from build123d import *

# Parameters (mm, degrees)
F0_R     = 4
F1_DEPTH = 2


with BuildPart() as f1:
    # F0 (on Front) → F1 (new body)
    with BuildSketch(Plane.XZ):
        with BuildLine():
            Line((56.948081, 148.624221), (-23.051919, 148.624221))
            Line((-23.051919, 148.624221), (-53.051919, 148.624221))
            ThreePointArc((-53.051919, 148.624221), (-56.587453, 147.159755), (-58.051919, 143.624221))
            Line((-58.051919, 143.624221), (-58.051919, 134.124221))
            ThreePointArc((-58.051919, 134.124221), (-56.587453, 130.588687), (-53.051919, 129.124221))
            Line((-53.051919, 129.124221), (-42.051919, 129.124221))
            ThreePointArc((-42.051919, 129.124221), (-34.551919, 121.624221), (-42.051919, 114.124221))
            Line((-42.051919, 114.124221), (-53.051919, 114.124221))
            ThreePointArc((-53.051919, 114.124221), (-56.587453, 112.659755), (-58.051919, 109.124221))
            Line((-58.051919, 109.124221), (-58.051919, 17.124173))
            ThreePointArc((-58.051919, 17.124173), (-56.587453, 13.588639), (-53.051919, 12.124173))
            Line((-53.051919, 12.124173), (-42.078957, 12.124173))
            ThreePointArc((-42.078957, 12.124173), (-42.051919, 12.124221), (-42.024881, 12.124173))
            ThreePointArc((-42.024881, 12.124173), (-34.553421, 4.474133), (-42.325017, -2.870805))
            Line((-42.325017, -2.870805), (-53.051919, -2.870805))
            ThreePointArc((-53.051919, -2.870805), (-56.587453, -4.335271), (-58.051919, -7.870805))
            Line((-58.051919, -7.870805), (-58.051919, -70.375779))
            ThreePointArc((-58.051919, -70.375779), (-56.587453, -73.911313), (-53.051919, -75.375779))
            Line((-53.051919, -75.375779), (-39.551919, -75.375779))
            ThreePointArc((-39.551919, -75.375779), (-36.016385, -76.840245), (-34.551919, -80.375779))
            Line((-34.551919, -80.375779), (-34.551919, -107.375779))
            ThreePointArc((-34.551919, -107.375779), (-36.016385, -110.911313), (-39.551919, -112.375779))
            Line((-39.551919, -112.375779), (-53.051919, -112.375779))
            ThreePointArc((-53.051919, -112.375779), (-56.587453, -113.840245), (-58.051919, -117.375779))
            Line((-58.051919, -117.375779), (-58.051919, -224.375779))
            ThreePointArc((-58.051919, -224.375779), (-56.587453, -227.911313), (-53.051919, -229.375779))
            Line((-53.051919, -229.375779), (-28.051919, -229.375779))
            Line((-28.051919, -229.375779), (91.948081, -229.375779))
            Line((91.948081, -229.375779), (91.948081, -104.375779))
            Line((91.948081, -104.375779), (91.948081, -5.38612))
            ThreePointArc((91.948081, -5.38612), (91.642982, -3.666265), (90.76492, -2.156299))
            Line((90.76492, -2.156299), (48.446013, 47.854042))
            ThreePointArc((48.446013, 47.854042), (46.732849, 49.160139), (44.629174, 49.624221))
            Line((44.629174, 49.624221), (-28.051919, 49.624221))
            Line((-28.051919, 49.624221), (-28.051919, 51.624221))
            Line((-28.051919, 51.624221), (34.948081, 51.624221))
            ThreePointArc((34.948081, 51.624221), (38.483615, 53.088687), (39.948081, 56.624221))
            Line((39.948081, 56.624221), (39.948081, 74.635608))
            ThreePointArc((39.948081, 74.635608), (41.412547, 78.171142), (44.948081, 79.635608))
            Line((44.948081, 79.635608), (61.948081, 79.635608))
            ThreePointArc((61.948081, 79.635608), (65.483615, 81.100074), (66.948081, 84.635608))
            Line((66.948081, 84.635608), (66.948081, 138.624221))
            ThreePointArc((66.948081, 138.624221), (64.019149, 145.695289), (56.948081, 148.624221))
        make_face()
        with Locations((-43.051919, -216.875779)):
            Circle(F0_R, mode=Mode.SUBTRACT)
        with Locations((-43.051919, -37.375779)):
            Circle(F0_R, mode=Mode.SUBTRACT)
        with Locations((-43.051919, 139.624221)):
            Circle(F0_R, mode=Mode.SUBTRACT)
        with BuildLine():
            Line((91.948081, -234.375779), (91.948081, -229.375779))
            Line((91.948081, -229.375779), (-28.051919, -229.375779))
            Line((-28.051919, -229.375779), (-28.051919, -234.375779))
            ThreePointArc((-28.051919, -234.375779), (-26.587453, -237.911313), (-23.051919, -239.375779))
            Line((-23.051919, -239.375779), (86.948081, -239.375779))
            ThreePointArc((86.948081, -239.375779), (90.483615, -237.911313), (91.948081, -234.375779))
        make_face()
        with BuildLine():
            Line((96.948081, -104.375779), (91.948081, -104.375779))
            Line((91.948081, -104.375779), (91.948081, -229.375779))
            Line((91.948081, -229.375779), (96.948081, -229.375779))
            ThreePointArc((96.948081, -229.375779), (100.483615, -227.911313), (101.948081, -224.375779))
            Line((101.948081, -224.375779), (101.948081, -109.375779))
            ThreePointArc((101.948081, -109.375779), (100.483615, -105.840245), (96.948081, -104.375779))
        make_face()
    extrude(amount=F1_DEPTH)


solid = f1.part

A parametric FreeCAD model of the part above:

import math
import FreeCAD as App
import Part
import Sketcher

V = App.Vector
Q = App.Units.Quantity

doc = App.newDocument("Part")
body = doc.addObject("PartDesign::Body", "Body")

# Sketch on XZ plane
sketch1 = doc.addObject("Sketcher::SketchObject", "Sketch")
body.addObject(sketch1)
sketch1.AttachmentSupport = (doc.XZ_Plane, [""])
sketch1.MapMode = "FlatFace"
sketch1.addGeometry(Part.LineSegment(V(56.95, 148.62, 0), V(-53.05, 148.62, 0)), False)
sketch1.addGeometry(Part.ArcOfCircle(Part.Circle(V(-53.05, 143.62, 0), V(0, 0, 1), 5), math.radians(90), math.radians(180)), False)
sketch1.addGeometry(Part.LineSegment(V(-58.05, 143.62, 0), V(-58.05, 134.12, 0)), False)
sketch1.addGeometry(Part.ArcOfCircle(Part.Circle(V(-53.05, 134.12, 0), V(0, 0, 1), 5), math.radians(180), math.radians(270)), False)
sketch1.addGeometry(Part.LineSegment(V(-53.05, 129.12, 0), V(-42.05, 129.12, 0)), False)
sketch1.addGeometry(Part.ArcOfCircle(Part.Circle(V(-42.05, 121.62, 0), V(0, 0, 1), 7.5), math.radians(-90), math.radians(90)), False)
sketch1.addGeometry(Part.LineSegment(V(-42.05, 114.12, 0), V(-53.05, 114.12, 0)), False)
sketch1.addGeometry(Part.ArcOfCircle(Part.Circle(V(-53.05, 109.12, 0), V(0, 0, 1), 5), math.radians(90), math.radians(180)), False)
sketch1.addGeometry(Part.LineSegment(V(-58.05, 109.12, 0), V(-58.05, 17.12, 0)), False)
sketch1.addGeometry(Part.ArcOfCircle(Part.Circle(V(-53.05, 17.12, 0), V(0, 0, 1), 5), math.radians(180), math.radians(270)), False)
sketch1.addGeometry(Part.LineSegment(V(-53.05, 12.12, 0), V(-42.08, 12.12, 0)), False)
sketch1.addGeometry(Part.ArcOfCircle(Part.Circle(V(-42.05, 4.51, 0), V(0, 0, 1), 7.62), math.radians(89.8), math.radians(90.2)), False)
sketch1.addGeometry(Part.ArcOfCircle(Part.Circle(V(-42.05, 4.62, 0), V(0, 0, 1), 7.5), math.radians(-92), math.radians(90)), False)
sketch1.addGeometry(Part.LineSegment(V(-42.33, -2.87, 0), V(-53.05, -2.87, 0)), False)
sketch1.addGeometry(Part.ArcOfCircle(Part.Circle(V(-53.05, -7.87, 0), V(0, 0, 1), 5), math.radians(90), math.radians(180)), False)
sketch1.addGeometry(Part.LineSegment(V(-58.05, -7.87, 0), V(-58.05, -70.38, 0)), False)
sketch1.addGeometry(Part.ArcOfCircle(Part.Circle(V(-53.05, -70.38, 0), V(0, 0, 1), 5), math.radians(180), math.radians(270)), False)
sketch1.addGeometry(Part.LineSegment(V(-53.05, -75.38, 0), V(-39.55, -75.38, 0)), False)
sketch1.addGeometry(Part.ArcOfCircle(Part.Circle(V(-39.55, -80.38, 0), V(0, 0, 1), 5), math.radians(0), math.radians(90)), False)
sketch1.addGeometry(Part.LineSegment(V(-34.55, -80.38, 0), V(-34.55, -107.38, 0)), False)
sketch1.addGeometry(Part.ArcOfCircle(Part.Circle(V(-39.55, -107.38, 0), V(0, 0, 1), 5), math.radians(-90), math.radians(0)), False)
sketch1.addGeometry(Part.LineSegment(V(-39.55, -112.38, 0), V(-53.05, -112.38, 0)), False)
sketch1.addGeometry(Part.ArcOfCircle(Part.Circle(V(-53.05, -117.38, 0), V(0, 0, 1), 5), math.radians(90), math.radians(180)), False)
sketch1.addGeometry(Part.LineSegment(V(-58.05, -117.38, 0), V(-58.05, -224.38, 0)), False)
sketch1.addGeometry(Part.ArcOfCircle(Part.Circle(V(-53.05, -224.38, 0), V(0, 0, 1), 5), math.radians(180), math.radians(270)), False)
sketch1.addGeometry(Part.LineSegment(V(-53.05, -229.38, 0), V(-28.05, -229.38, 0)), False)
sketch1.addGeometry(Part.LineSegment(V(-28.05, -229.38, 0), V(-28.05, -234.38, 0)), False)
sketch1.addGeometry(Part.ArcOfCircle(Part.Circle(V(-23.05, -234.38, 0), V(0, 0, 1), 5), math.radians(180), math.radians(270)), False)
sketch1.addGeometry(Part.LineSegment(V(-23.05, -239.38, 0), V(86.95, -239.38, 0)), False)
sketch1.addGeometry(Part.ArcOfCircle(Part.Circle(V(86.95, -234.38, 0), V(0, 0, 1), 5), math.radians(-90), math.radians(0)), False)
sketch1.addGeometry(Part.LineSegment(V(91.95, -234.38, 0), V(91.95, -229.38, 0)), False)
sketch1.addGeometry(Part.LineSegment(V(91.95, -229.38, 0), V(96.95, -229.38, 0)), False)
sketch1.addGeometry(Part.ArcOfCircle(Part.Circle(V(96.95, -224.38, 0), V(0, 0, 1), 5), math.radians(-90), math.radians(0)), False)
sketch1.addGeometry(Part.LineSegment(V(101.95, -224.38, 0), V(101.95, -109.38, 0)), False)
sketch1.addGeometry(Part.ArcOfCircle(Part.Circle(V(96.95, -109.38, 0), V(0, 0, 1), 5), math.radians(0), math.radians(90)), False)
sketch1.addGeometry(Part.LineSegment(V(96.95, -104.38, 0), V(91.95, -104.38, 0)), False)
sketch1.addGeometry(Part.LineSegment(V(91.95, -104.38, 0), V(91.95, -5.39, 0)), False)
sketch1.addGeometry(Part.ArcOfCircle(Part.Circle(V(86.95, -5.39, 0), V(0, 0, 1), 5), math.radians(0), math.radians(40)), False)
sketch1.addGeometry(Part.LineSegment(V(90.76, -2.16, 0), V(48.45, 47.85, 0)), False)
sketch1.addGeometry(Part.ArcOfCircle(Part.Circle(V(44.63, 44.62, 0), V(0, 0, 1), 5), math.radians(40), math.radians(90)), False)
sketch1.addGeometry(Part.LineSegment(V(44.63, 49.62, 0), V(-28.05, 49.62, 0)), False)
sketch1.addGeometry(Part.LineSegment(V(-28.05, 49.62, 0), V(-28.05, 51.62, 0)), False)
sketch1.addGeometry(Part.LineSegment(V(-28.05, 51.62, 0), V(34.95, 51.62, 0)), False)
sketch1.addGeometry(Part.ArcOfCircle(Part.Circle(V(34.95, 56.62, 0), V(0, 0, 1), 5), math.radians(-90), math.radians(0)), False)
sketch1.addGeometry(Part.LineSegment(V(39.95, 56.62, 0), V(39.95, 74.64, 0)), False)
sketch1.addGeometry(Part.ArcOfCircle(Part.Circle(V(44.95, 74.64, 0), V(0, 0, 1), 5), math.radians(90), math.radians(180)), False)
sketch1.addGeometry(Part.LineSegment(V(44.95, 79.64, 0), V(61.95, 79.64, 0)), False)
sketch1.addGeometry(Part.ArcOfCircle(Part.Circle(V(61.95, 84.64, 0), V(0, 0, 1), 5), math.radians(-90), math.radians(0)), False)
sketch1.addGeometry(Part.LineSegment(V(66.95, 84.64, 0), V(66.95, 138.62, 0)), False)
sketch1.addGeometry(Part.ArcOfCircle(Part.Circle(V(56.95, 138.62, 0), V(0, 0, 1), 10), math.radians(0), math.radians(90)), False)
sketch1.addGeometry(Part.Circle(V(-43.05, -216.88, 0), V(0, 0, 1), 4), False)
sketch1.addGeometry(Part.Circle(V(-43.05, -37.38, 0), V(0, 0, 1), 4), False)
sketch1.addGeometry(Part.Circle(V(-43.05, 139.62, 0), V(0, 0, 1), 4), False)
sketch1.addConstraint(Sketcher.Constraint("Tangent", 0, 2, 1, 1))
sketch1.addConstraint(Sketcher.Constraint("Tangent", 1, 2, 2, 1))
sketch1.addConstraint(Sketcher.Constraint("Tangent", 2, 2, 3, 1))
sketch1.addConstraint(Sketcher.Constraint("Tangent", 3, 2, 4, 1))
sketch1.addConstraint(Sketcher.Constraint("Tangent", 4, 2, 5, 2))
sketch1.addConstraint(Sketcher.Constraint("Tangent", 5, 1, 6, 1))
sketch1.addConstraint(Sketcher.Constraint("Tangent", 6, 2, 7, 1))
sketch1.addConstraint(Sketcher.Constraint("Tangent", 7, 2, 8, 1))
sketch1.addConstraint(Sketcher.Constraint("Tangent", 8, 2, 9, 1))
sketch1.addConstraint(Sketcher.Constraint("Tangent", 9, 2, 10, 1))
sketch1.addConstraint(Sketcher.Constraint("Coincident", 10, 2, 11, 2))
sketch1.addConstraint(Sketcher.Constraint("Coincident", 11, 1, 12, 2))
sketch1.addConstraint(Sketcher.Constraint("Coincident", 12, 1, 13, 1))
sketch1.addConstraint(Sketcher.Constraint("Tangent", 13, 2, 14, 1))
sketch1.addConstraint(Sketcher.Constraint("Tangent", 14, 2, 15, 1))
sketch1.addConstraint(Sketcher.Constraint("Tangent", 15, 2, 16, 1))
sketch1.addConstraint(Sketcher.Constraint("Tangent", 16, 2, 17, 1))
sketch1.addConstraint(Sketcher.Constraint("Tangent", 17, 2, 18, 2))
sketch1.addConstraint(Sketcher.Constraint("Tangent", 18, 1, 19, 1))
sketch1.addConstraint(Sketcher.Constraint("Tangent", 19, 2, 20, 2))
sketch1.addConstraint(Sketcher.Constraint("Tangent", 20, 1, 21, 1))
sketch1.addConstraint(Sketcher.Constraint("Tangent", 21, 2, 22, 1))
sketch1.addConstraint(Sketcher.Constraint("Tangent", 22, 2, 23, 1))
sketch1.addConstraint(Sketcher.Constraint("Tangent", 23, 2, 24, 1))
sketch1.addConstraint(Sketcher.Constraint("Tangent", 24, 2, 25, 1))
sketch1.addConstraint(Sketcher.Constraint("Coincident", 25, 2, 26, 1))
sketch1.addConstraint(Sketcher.Constraint("Tangent", 26, 2, 27, 1))
sketch1.addConstraint(Sketcher.Constraint("Tangent", 27, 2, 28, 1))
sketch1.addConstraint(Sketcher.Constraint("Tangent", 28, 2, 29, 1))
sketch1.addConstraint(Sketcher.Constraint("Tangent", 29, 2, 30, 1))
sketch1.addConstraint(Sketcher.Constraint("Coincident", 30, 2, 31, 1))
sketch1.addConstraint(Sketcher.Constraint("Tangent", 31, 2, 32, 1))
sketch1.addConstraint(Sketcher.Constraint("Tangent", 32, 2, 33, 1))
sketch1.addConstraint(Sketcher.Constraint("Tangent", 33, 2, 34, 1))
sketch1.addConstraint(Sketcher.Constraint("Tangent", 34, 2, 35, 1))
sketch1.addConstraint(Sketcher.Constraint("Coincident", 35, 2, 36, 1))
sketch1.addConstraint(Sketcher.Constraint("Tangent", 36, 2, 37, 1))
sketch1.addConstraint(Sketcher.Constraint("Tangent", 37, 2, 38, 1))
sketch1.addConstraint(Sketcher.Constraint("Tangent", 38, 2, 39, 1))
sketch1.addConstraint(Sketcher.Constraint("Tangent", 39, 2, 40, 1))
sketch1.addConstraint(Sketcher.Constraint("Coincident", 40, 2, 41, 1))
sketch1.addConstraint(Sketcher.Constraint("Coincident", 41, 2, 42, 1))
sketch1.addConstraint(Sketcher.Constraint("Tangent", 42, 2, 43, 1))
sketch1.addConstraint(Sketcher.Constraint("Tangent", 43, 2, 44, 1))
sketch1.addConstraint(Sketcher.Constraint("Tangent", 44, 2, 45, 2))
sketch1.addConstraint(Sketcher.Constraint("Tangent", 45, 1, 46, 1))
sketch1.addConstraint(Sketcher.Constraint("Tangent", 46, 2, 47, 1))
sketch1.addConstraint(Sketcher.Constraint("Tangent", 47, 2, 48, 1))
sketch1.addConstraint(Sketcher.Constraint("Tangent", 48, 2, 49, 1))
sketch1.addConstraint(Sketcher.Constraint("Tangent", 49, 2, 0, 1))
sketch1.addConstraint(Sketcher.Constraint("Horizontal", 0))
sketch1.addConstraint(Sketcher.Constraint("Vertical", 2))
sketch1.addConstraint(Sketcher.Constraint("Horizontal", 4))
sketch1.addConstraint(Sketcher.Constraint("Horizontal", 6))
sketch1.addConstraint(Sketcher.Constraint("Vertical", 8))
sketch1.addConstraint(Sketcher.Constraint("Horizontal", 10))
sketch1.addConstraint(Sketcher.Constraint("Horizontal", 13))
sketch1.addConstraint(Sketcher.Constraint("Vertical", 15))
sketch1.addConstraint(Sketcher.Constraint("Horizontal", 17))
sketch1.addConstraint(Sketcher.Constraint("Vertical", 19))
sketch1.addConstraint(Sketcher.Constraint("Horizontal", 21))
sketch1.addConstraint(Sketcher.Constraint("Vertical", 23))
sketch1.addConstraint(Sketcher.Constraint("Horizontal", 25))
sketch1.addConstraint(Sketcher.Constraint("Vertical", 26))
sketch1.addConstraint(Sketcher.Constraint("Horizontal", 28))
sketch1.addConstraint(Sketcher.Constraint("Vertical", 30))
sketch1.addConstraint(Sketcher.Constraint("Horizontal", 31))
sketch1.addConstraint(Sketcher.Constraint("Vertical", 33))
sketch1.addConstraint(Sketcher.Constraint("Horizontal", 35))
sketch1.addConstraint(Sketcher.Constraint("Vertical", 36))
sketch1.addConstraint(Sketcher.Constraint("Horizontal", 40))
sketch1.addConstraint(Sketcher.Constraint("Vertical", 41))
sketch1.addConstraint(Sketcher.Constraint("Horizontal", 42))
sketch1.addConstraint(Sketcher.Constraint("Vertical", 44))
sketch1.addConstraint(Sketcher.Constraint("Horizontal", 46))
sketch1.addConstraint(Sketcher.Constraint("Vertical", 48))
sketch1.addConstraint(Sketcher.Constraint("Equal", 1, 3))
sketch1.addConstraint(Sketcher.Constraint("Equal", 3, 7))
sketch1.addConstraint(Sketcher.Constraint("Equal", 7, 9))
sketch1.addConstraint(Sketcher.Constraint("Equal", 5, 12))
sketch1.addConstraint(Sketcher.Constraint("Equal", 9, 14))
sketch1.addConstraint(Sketcher.Constraint("Equal", 14, 16))
sketch1.addConstraint(Sketcher.Constraint("Equal", 16, 18))
sketch1.addConstraint(Sketcher.Constraint("Equal", 18, 20))
sketch1.addConstraint(Sketcher.Constraint("Equal", 20, 22))
sketch1.addConstraint(Sketcher.Constraint("Equal", 22, 24))
sketch1.addConstraint(Sketcher.Constraint("Equal", 24, 27))
sketch1.addConstraint(Sketcher.Constraint("Equal", 27, 29))
sketch1.addConstraint(Sketcher.Constraint("Equal", 29, 32))
sketch1.addConstraint(Sketcher.Constraint("Equal", 32, 34))
sketch1.addConstraint(Sketcher.Constraint("Equal", 34, 39))
sketch1.addConstraint(Sketcher.Constraint("Equal", 39, 43))
sketch1.addConstraint(Sketcher.Constraint("Equal", 43, 45))
sketch1.addConstraint(Sketcher.Constraint("Equal", 45, 47))
sketch1.addConstraint(Sketcher.Constraint("Equal", 50, 51))
sketch1.addConstraint(Sketcher.Constraint("Equal", 51, 52))
sketch1.addConstraint(Sketcher.Constraint("Horizontal", 24, 3, 32, 3))
sketch1.addConstraint(Sketcher.Constraint("Horizontal", 10, 2, 11, 1))
sketch1.addConstraint(Sketcher.Constraint("Vertical", 3, 3, 7, 3))
sketch1.addConstraint(Sketcher.Constraint("Vertical", 5, 3, 11, 3))
sketch1.addConstraint(Sketcher.Constraint("Vertical", 11, 3, 12, 3))
sketch1.addConstraint(Sketcher.Constraint("Vertical", 9, 3, 14, 3))
sketch1.addConstraint(Sketcher.Constraint("Vertical", 16, 3, 22, 3))
sketch1.addConstraint(Sketcher.Constraint("Vertical", 50, 3, 51, 3))
sketch1.addConstraint(Sketcher.Constraint("Vertical", 51, 3, 52, 3))
sketch1.addConstraint(Sketcher.Constraint("Vertical", 30, 2, 35, 2))
sketch1.addConstraint(Sketcher.Constraint("Vertical", 26, 2, 40, 2))
sketch1.addConstraint(Sketcher.Constraint("Equal", 0, 28))
sketch1.addConstraint(Sketcher.Constraint("Equal", 35, 26))
sketch1.addConstraint(Sketcher.Constraint("Diameter", 50, Q("8 mm")))
sketch1.addConstraint(Sketcher.Constraint("Radius", 1, Q("5 mm")))
sketch1.addConstraint(Sketcher.Constraint("Radius", 49, Q("9.999999 mm")))
sketch1.addConstraint(Sketcher.Constraint("Radius", 5, Q("7.5 mm")))
sketch1.addConstraint(Sketcher.Constraint("DistanceX", 0, 2, 0, 1, Q("110 mm")))
sketch1.addConstraint(Sketcher.Constraint("DistanceX", 4, 1, 4, 2, Q("11 mm")))
sketch1.addConstraint(Sketcher.Constraint("DistanceX", 25, 1, 25, 2, Q("25 mm")))
sketch1.addConstraint(Sketcher.Constraint("DistanceX", 31, 1, 31, 2, Q("5 mm")))
sketch1.addConstraint(Sketcher.Constraint("DistanceX", 42, 1, 42, 2, Q("63 mm")))
sketch1.addConstraint(Sketcher.Constraint("DistanceY", 19, 2, 19, 1, Q("27 mm")))
sketch1.addConstraint(Sketcher.Constraint("DistanceY", 23, 2, 23, 1, Q("107 mm")))
sketch1.addConstraint(Sketcher.Constraint("DistanceY", 33, 1, 33, 2, Q("115 mm")))
sketch1.addConstraint(Sketcher.Constraint("DistanceY", 41, 1, 41, 2, Q("2 mm")))
sketch1.addConstraint(Sketcher.Constraint("DistanceX", 17, 1, 17, 2, Q("13.5 mm")))
sketch1.addConstraint(Sketcher.Constraint("DistanceY", 2, 2, 2, 1, Q("9.5 mm")))
sketch1.addConstraint(Sketcher.Constraint("Radius", 37, Q("5.000008 mm")))
sketch1.addConstraint(Sketcher.Constraint("DistanceX", 13, 2, 13, 1, Q("10.726902 mm")))
sketch1.addConstraint(Sketcher.Constraint("Radius", 11, Q("7.615164 mm")))
sketch1.addConstraint(Sketcher.Constraint("DistanceX", 10, 1, 10, 2, Q("10.972962 mm")))
sketch1.addConstraint(Sketcher.Constraint("DistanceY", 8, 2, 8, 1, Q("92.000048 mm")))
sketch1.addConstraint(Sketcher.Constraint("DistanceY", 36, 1, 36, 2, Q("98.989659 mm")))
sketch1.addConstraint(Sketcher.Constraint("DistanceY", 37, 2, -1, 1, Q("2.156299 mm")))
sketch1.addConstraint(Sketcher.Constraint("Distance", 38, Q("65.512778 mm")))
sketch1.addConstraint(Sketcher.Constraint("DistanceX", 40, 2, 40, 1, Q("72.681093 mm")))
sketch1.addConstraint(Sketcher.Constraint("DistanceY", 15, 2, 15, 1, Q("62.504974 mm")))
sketch1.addConstraint(Sketcher.Constraint("DistanceY", 44, 1, 44, 2, Q("18.011387 mm")))
sketch1.addConstraint(Sketcher.Constraint("DistanceX", 1, 3, -1, 1, Q("53.051919 mm")))
sketch1.addConstraint(Sketcher.Constraint("DistanceX", 50, 3, -1, 1, Q("43.051919 mm")))
sketch1.addConstraint(Sketcher.Constraint("DistanceY", 50, 3, -1, 1, Q("216.875779 mm")))
sketch1.addConstraint(Sketcher.Constraint("DistanceY", 51, 3, -1, 1, Q("37.375779 mm")))
sketch1.addConstraint(Sketcher.Constraint("DistanceY", -1, 1, 52, 3, Q("139.624221 mm")))
pad1 = doc.addObject("PartDesign::Pad", "Pad")
body.addObject(pad1)
pad1.Profile = sketch1
pad1.Length = 2

doc.recompute()
